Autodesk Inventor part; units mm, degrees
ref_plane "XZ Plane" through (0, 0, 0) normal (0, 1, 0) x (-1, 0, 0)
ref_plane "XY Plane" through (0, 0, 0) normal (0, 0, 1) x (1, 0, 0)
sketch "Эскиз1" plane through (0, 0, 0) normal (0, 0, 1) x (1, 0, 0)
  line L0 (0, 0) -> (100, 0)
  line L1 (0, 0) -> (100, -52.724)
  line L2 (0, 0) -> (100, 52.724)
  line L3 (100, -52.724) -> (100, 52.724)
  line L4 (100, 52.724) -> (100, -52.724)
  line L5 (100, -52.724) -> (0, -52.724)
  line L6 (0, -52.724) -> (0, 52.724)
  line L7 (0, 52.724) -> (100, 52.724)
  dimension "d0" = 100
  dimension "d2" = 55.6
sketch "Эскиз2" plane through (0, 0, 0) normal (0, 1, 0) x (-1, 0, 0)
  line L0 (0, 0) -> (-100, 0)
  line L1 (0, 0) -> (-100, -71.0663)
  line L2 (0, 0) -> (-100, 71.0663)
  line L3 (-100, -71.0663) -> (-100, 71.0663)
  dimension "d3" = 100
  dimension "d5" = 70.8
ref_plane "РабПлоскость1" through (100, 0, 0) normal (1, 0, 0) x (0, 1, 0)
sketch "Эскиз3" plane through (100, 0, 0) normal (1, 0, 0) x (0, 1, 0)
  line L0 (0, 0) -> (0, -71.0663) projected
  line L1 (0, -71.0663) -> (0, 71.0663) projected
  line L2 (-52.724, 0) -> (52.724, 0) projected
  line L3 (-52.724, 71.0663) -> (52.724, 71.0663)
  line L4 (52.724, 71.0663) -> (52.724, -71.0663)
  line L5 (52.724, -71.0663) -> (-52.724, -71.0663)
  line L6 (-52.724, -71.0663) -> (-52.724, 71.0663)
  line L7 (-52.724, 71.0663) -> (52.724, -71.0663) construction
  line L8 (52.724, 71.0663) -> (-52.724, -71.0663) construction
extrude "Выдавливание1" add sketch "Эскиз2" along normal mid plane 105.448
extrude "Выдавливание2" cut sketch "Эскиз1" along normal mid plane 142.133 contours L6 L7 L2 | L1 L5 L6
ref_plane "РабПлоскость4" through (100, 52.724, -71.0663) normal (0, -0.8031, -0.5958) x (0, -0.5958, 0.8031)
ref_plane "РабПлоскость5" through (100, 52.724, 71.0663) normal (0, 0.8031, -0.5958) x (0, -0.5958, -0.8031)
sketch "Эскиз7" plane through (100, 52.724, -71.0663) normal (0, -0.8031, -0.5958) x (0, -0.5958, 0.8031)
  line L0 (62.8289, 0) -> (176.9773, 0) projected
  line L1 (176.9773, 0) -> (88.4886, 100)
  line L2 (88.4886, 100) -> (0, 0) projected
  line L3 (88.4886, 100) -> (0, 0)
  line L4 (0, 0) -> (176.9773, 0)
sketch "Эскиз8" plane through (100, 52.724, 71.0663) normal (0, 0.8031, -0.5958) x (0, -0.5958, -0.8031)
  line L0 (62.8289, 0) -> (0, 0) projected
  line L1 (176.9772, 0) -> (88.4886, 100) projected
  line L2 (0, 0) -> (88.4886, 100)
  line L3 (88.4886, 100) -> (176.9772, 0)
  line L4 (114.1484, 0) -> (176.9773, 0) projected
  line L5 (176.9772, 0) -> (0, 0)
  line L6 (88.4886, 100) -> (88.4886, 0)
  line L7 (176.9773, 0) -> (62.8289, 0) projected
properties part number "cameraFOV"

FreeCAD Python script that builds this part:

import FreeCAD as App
import Part
import Sketcher

V = App.Vector
Q = App.Units.Quantity

doc = App.newDocument("Part")
body = doc.addObject("PartDesign::Body", "Body")

sketch1 = body.newObject("Sketcher::SketchObject", "Sketch")
sketch1.AttachmentSupport = (doc.getObject("XZ_Plane"), [""])
sketch1.MapMode = "FlatFace"
sketch1.addGeometry([
    Part.LineSegment(V(100, -71, 0), V(0, 0, 0)),
    Part.LineSegment(V(0, 0, 0), V(100, 71, 0)),
    Part.LineSegment(V(100, 71, 0), V(100, -71, 0)),
], False)
sketch1.addConstraint([
    Sketcher.Constraint("Coincident", 0, 2, 1, 1),
    Sketcher.Constraint("Coincident", 1, 2, 2, 1),
    Sketcher.Constraint("Coincident", 2, 2, 0, 1),
    Sketcher.Constraint("Vertical", 2),
    Sketcher.Constraint("Coincident", 0, 2, -1, 1),
    Sketcher.Constraint("Equal", 0, 1),
    Sketcher.Constraint("DistanceX", -1, 1, 1, 2, Q("3.937 in")),
    Sketcher.Constraint("Angle", 0, Q("144.6 deg")),
])
pad1 = body.newObject("PartDesign::Pad", "Pad")
pad1.Profile = sketch1
pad1.Length = Q("4.1514961 in")
pad1.Midplane = True

sketch2 = body.newObject("Sketcher::SketchObject", "Sketch001")
sketch2.AttachmentSupport = (doc.getObject("XY_Plane"), [""])
sketch2.MapMode = "FlatFace"
sketch2.addGeometry([
    Part.LineSegment(V(0, 53, 0), V(0, 0, 0)),
    Part.LineSegment(V(0, 0, 0), V(100, 53, 0)),
    Part.LineSegment(V(100, 53, 0), V(0, 53, 0)),
    Part.LineSegment(V(100, -53, 0), V(0, 0, 0)),
    Part.LineSegment(V(0, 0, 0), V(0, -53, 0)),
    Part.LineSegment(V(0, -53, 0), V(100, -53, 0)),
], False)
sketch2.addConstraint([
    Sketcher.Constraint("Coincident", 0, 2, 1, 1),
    Sketcher.Constraint("Coincident", 1, 2, 2, 1),
    Sketcher.Constraint("Coincident", 2, 2, 0, 1),
    Sketcher.Constraint("Coincident", 3, 2, 4, 1),
    Sketcher.Constraint("Coincident", 4, 2, 5, 1),
    Sketcher.Constraint("Coincident", 5, 2, 3, 1),
    Sketcher.Constraint("Vertical", 0),
    Sketcher.Constraint("Horizontal", 2),
    Sketcher.Constraint("Vertical", 4),
    Sketcher.Constraint("Horizontal", 5),
    Sketcher.Constraint("Coincident", 0, 2, -1, 1),
    Sketcher.Constraint("Coincident", 3, 2, -1, 1),
    Sketcher.Constraint("Symmetric", 1, 2, 5, 2, -1),
    Sketcher.Constraint("DistanceX", 2, 2, 2, 1, Q("3.937 in")),
    Sketcher.Constraint("Angle", 1, Q("27.8 deg")),
])
pocket1 = body.newObject("PartDesign::Pocket", "Pocket")
pocket1.Profile = sketch2
pocket1.Length = 142.133
pocket1.Midplane = True

doc.recompute()
